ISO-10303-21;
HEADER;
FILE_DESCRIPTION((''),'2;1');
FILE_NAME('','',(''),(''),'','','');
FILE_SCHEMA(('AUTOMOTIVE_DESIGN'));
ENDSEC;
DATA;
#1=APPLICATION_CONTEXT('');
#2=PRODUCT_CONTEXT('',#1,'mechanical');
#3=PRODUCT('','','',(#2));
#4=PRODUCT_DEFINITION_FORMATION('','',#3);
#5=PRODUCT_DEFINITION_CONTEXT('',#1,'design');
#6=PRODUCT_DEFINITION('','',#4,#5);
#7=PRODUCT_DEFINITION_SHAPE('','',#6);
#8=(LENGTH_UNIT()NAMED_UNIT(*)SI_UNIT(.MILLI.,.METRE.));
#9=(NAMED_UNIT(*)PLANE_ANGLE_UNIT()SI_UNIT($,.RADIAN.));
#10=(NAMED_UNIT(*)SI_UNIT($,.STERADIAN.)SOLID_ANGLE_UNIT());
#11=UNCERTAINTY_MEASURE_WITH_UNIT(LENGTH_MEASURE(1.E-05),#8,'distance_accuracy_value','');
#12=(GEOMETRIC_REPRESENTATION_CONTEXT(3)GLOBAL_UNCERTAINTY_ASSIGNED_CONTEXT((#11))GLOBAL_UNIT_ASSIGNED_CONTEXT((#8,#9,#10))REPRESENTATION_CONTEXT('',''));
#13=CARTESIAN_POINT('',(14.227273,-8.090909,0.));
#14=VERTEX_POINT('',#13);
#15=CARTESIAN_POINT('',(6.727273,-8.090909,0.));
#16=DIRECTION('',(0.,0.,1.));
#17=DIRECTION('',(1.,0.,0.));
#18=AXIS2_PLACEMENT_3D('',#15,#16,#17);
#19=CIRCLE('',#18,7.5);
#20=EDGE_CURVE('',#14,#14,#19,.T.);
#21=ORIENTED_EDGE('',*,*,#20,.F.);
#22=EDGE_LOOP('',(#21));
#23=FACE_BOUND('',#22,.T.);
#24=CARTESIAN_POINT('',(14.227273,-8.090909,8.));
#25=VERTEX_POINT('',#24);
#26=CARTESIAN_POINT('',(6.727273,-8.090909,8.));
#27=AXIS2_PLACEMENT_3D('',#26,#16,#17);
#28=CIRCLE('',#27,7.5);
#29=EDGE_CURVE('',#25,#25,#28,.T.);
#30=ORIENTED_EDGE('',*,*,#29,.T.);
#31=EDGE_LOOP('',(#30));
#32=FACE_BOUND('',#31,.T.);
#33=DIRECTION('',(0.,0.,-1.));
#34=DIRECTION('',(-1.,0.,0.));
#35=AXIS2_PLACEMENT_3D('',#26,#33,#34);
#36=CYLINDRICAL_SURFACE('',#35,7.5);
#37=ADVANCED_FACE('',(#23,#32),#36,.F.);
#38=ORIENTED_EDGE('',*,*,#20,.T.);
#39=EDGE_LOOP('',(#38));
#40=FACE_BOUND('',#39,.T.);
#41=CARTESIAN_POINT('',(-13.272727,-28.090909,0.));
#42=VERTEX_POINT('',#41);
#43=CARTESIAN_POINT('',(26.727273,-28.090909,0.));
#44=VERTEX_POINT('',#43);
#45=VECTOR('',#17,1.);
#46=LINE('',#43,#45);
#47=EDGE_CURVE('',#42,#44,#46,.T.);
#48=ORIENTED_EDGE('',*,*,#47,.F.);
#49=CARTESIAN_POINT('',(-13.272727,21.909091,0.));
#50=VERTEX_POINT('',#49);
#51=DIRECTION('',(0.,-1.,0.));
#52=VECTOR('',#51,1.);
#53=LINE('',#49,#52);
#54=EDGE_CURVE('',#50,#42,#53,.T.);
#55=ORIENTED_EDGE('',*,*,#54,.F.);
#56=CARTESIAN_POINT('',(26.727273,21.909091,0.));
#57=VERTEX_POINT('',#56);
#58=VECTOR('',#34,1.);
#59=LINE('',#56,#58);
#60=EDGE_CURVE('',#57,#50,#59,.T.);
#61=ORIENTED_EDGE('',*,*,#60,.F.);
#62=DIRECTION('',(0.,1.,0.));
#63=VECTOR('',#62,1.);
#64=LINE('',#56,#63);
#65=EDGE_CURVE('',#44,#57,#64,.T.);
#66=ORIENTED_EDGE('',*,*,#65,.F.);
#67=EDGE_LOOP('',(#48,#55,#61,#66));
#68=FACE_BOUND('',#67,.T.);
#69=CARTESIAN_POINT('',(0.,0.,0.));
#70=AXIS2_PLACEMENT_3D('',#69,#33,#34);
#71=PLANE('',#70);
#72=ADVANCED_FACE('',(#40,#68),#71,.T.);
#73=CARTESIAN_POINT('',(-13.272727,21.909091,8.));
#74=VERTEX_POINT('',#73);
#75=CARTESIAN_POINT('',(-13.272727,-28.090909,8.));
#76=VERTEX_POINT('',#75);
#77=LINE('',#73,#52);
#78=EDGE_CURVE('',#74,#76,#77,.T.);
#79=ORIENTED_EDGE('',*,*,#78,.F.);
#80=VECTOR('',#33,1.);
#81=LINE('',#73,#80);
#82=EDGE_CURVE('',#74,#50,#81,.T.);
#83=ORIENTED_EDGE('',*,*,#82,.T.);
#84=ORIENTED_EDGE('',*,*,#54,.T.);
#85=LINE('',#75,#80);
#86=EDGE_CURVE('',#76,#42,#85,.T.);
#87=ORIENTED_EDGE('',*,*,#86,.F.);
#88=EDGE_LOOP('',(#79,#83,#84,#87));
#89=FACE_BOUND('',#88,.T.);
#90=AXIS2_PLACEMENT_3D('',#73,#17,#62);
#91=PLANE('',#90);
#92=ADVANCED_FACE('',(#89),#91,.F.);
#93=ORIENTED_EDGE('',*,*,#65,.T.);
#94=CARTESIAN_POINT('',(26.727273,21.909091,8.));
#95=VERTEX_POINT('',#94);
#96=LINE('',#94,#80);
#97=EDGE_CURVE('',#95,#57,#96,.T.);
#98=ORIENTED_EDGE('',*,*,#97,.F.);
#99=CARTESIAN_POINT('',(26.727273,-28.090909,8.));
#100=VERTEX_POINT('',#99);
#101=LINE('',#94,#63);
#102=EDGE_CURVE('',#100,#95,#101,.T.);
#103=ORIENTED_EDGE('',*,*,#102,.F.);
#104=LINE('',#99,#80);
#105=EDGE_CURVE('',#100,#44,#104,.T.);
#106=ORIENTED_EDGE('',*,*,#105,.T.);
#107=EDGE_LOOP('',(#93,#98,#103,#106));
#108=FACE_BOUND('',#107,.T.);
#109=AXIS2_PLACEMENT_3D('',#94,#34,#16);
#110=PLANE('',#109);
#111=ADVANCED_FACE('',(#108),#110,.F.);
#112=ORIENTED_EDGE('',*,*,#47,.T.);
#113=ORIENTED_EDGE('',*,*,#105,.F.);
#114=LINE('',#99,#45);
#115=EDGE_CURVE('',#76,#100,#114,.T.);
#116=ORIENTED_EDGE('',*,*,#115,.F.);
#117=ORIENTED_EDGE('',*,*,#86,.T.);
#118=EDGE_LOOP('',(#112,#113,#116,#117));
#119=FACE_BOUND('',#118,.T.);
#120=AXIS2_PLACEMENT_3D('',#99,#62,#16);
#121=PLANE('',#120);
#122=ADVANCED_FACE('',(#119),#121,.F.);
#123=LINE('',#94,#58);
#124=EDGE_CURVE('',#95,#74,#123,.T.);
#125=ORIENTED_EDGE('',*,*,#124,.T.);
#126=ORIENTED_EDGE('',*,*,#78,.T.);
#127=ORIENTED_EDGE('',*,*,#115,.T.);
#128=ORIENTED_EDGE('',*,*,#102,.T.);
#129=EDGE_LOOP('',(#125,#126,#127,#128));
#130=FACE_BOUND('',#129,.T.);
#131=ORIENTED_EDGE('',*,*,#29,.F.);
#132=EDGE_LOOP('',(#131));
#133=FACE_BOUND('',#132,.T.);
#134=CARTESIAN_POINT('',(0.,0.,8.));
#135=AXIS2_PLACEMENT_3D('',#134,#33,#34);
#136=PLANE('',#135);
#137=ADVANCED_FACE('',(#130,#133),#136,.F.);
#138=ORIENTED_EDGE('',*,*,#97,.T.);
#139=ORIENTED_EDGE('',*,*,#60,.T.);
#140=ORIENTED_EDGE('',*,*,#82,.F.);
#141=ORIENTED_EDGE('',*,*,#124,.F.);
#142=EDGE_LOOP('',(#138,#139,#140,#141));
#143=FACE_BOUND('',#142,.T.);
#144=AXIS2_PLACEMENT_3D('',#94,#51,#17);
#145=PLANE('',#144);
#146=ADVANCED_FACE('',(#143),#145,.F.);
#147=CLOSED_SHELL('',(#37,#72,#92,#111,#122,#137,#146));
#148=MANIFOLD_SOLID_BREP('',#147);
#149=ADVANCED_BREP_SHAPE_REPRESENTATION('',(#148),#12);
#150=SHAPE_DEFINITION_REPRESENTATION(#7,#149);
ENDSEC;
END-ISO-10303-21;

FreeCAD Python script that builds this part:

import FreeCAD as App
import Part
import Sketcher

V = App.Vector
Q = App.Units.Quantity

doc = App.newDocument("Part")
body = doc.addObject("PartDesign::Body", "Body")

# Sketch on XY plane
sketch1 = body.newObject("Sketcher::SketchObject", "Sketch")
sketch1.AttachmentSupport = (doc.getObject("XY_Plane"), [""])
sketch1.MapMode = "FlatFace"
sketch1.addGeometry([
    Part.LineSegment(V(-13.272727, 21.909091, 0), V(-13.272727, -28.090909, 0)),  # 0
    Part.LineSegment(V(-13.272727, -28.090909, 0), V(26.727273, -28.090909, 0)),  # 1
    Part.LineSegment(V(26.727273, -28.090909, 0), V(26.727273, 21.909091, 0)),  # 2
    Part.LineSegment(V(26.727273, 21.909091, 0), V(-13.272727, 21.909091, 0)),  # 3
    Part.Circle(V(6.727273, -8.090909, 0), V(0, 0, 1), 7.5),  # 4
], False)
sketch1.addConstraint([
    Sketcher.Constraint("Coincident", 0, 2, 1, 1),
    Sketcher.Constraint("Coincident", 1, 2, 2, 1),
    Sketcher.Constraint("Coincident", 2, 2, 3, 1),
    Sketcher.Constraint("Coincident", 3, 2, 0, 1),
    Sketcher.Constraint("Vertical", 0),
    Sketcher.Constraint("Horizontal", 1),
    Sketcher.Constraint("Vertical", 2),
    Sketcher.Constraint("Horizontal", 3),
    Sketcher.Constraint("Diameter", 4, Q("15 mm")),
    Sketcher.Constraint("DistanceX", 1, 1, 1, 2, Q("40 mm")),
    Sketcher.Constraint("DistanceY", 0, 2, 0, 1, Q("50 mm")),
    Sketcher.Constraint("DistanceX", 0, 2, 4, 3, Q("20 mm")),
    Sketcher.Constraint("DistanceY", 0, 2, 4, 3, Q("20 mm")),
    Sketcher.Constraint("DistanceY", 4, 3, -1, 1, Q("8.090909 mm")),
    Sketcher.Constraint("DistanceX", -1, 1, 4, 3, Q("6.727273 mm")),
])
pad1 = body.newObject("PartDesign::Pad", "Pad")
pad1.Profile = sketch1
pad1.Length = 8

doc.recompute()
